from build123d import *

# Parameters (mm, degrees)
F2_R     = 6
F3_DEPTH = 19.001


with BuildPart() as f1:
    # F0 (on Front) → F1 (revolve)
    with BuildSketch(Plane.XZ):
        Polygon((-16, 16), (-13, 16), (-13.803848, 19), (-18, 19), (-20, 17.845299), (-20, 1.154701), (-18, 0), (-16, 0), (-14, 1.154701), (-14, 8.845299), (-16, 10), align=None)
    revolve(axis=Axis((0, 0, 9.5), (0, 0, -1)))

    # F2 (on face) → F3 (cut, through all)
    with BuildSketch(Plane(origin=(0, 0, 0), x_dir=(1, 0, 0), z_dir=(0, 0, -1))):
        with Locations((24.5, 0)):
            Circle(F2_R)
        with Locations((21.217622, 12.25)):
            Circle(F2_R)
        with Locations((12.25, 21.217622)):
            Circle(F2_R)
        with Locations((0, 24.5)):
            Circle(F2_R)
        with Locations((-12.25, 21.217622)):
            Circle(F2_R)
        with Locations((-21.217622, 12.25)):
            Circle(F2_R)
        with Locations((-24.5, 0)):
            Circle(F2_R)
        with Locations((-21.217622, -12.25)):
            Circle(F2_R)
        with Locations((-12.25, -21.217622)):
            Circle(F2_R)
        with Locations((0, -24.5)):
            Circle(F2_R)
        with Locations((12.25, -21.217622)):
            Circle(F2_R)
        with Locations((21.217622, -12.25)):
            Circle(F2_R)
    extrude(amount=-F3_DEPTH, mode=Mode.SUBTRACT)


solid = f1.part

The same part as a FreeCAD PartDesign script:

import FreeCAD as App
import Part
import Sketcher

V = App.Vector
Q = App.Units.Quantity


def add_polygon(sketch, points):
    """Adds a closed chain of lines whose ends are joined by coincident constraints."""
    first, n = sketch.GeometryCount, len(points)
    for a, b in zip(points, points[1:] + points[:1]):
        sketch.addGeometry(Part.LineSegment(App.Vector(*a, 0), App.Vector(*b, 0)), False)
    for i in range(n):
        sketch.addConstraint(Sketcher.Constraint("Coincident", first + i, 2, first + (i + 1) % n, 1))

doc = App.newDocument("Part")
body = doc.addObject("PartDesign::Body", "Body")

# Sketch on XZ plane
sketch1 = body.newObject("Sketcher::SketchObject", "Sketch")
sketch1.AttachmentSupport = (doc.getObject("XZ_Plane"), [""])
sketch1.MapMode = "FlatFace"
add_polygon(sketch1, [(-16, 16), (-13, 16), (-13.803848, 19), (-18, 19), (-20, 17.845299), (-20, 1.154701), (-18, 0), (-16, 0), (-14, 1.154701), (-14, 8.845299), (-16, 10)])  # lines 0-10
sketch1.addConstraint([
    Sketcher.Constraint("Horizontal", 0),
    Sketcher.Constraint("Horizontal", 2),
    Sketcher.Constraint("Vertical", 4),
    Sketcher.Constraint("Horizontal", 6),
    Sketcher.Constraint("Vertical", 8),
    Sketcher.Constraint("Vertical", 10),
    Sketcher.Constraint("PointOnObject", 5, 2, -1),
    Sketcher.Constraint("Parallel", 3, 7),
    Sketcher.Constraint("Parallel", 5, 9),
    Sketcher.Constraint("Horizontal", 4, 2, 7, 2),
    Sketcher.Constraint("Vertical", 2, 2, 5, 2),
    Sketcher.Constraint("Vertical", 6, 2, 9, 2),
    Sketcher.Constraint("Equal", 3, 5),
    Sketcher.Constraint("DistanceX", 0, 1, 0, 2, Q("3 mm")),
    Sketcher.Constraint("DistanceX", 6, 1, 6, 2, Q("2 mm")),
    Sketcher.Constraint("DistanceY", 10, 1, 10, 2, Q("6 mm")),
    Sketcher.Constraint("Angle", 1, Q("105.000008 deg")),
    Sketcher.Constraint("Angle", 3, Q("-149.99999 deg")),
    Sketcher.Constraint("DistanceX", 0, 2, -1, 1, Q("13 mm")),
    Sketcher.Constraint("DistanceY", -1, 1, 0, 2, Q("16 mm")),
    Sketcher.Constraint("DistanceY", -1, 1, 1, 2, Q("19 mm")),
    Sketcher.Constraint("DistanceX", 3, 2, -1, 1, Q("20 mm")),
])
revolution = body.newObject("PartDesign::Revolution", "Revolution")
revolution.Profile = sketch1
revolution.ReferenceAxis = (sketch1, ["V_Axis"])
revolution.Angle = 360

# Sketch on XY plane
sketch2 = body.newObject("Sketcher::SketchObject", "Sketch001")
sketch2.AttachmentSupport = (doc.getObject("XY_Plane"), [""])
sketch2.MapMode = "FlatFace"
sketch2.addGeometry([
    Part.Circle(V(24.5, 0, 0), V(0, 0, 1), 6),  # 0
    Part.Circle(V(21.217622, -12.25, 0), V(0, 0, 1), 6),  # 1
    Part.Circle(V(12.25, -21.217622, 0), V(0, 0, 1), 6),  # 2
    Part.Circle(V(0, -24.5, 0), V(0, 0, 1), 6),  # 3
    Part.Circle(V(-12.25, -21.217622, 0), V(0, 0, 1), 6),  # 4
    Part.Circle(V(-21.217622, -12.25, 0), V(0, 0, 1), 6),  # 5
    Part.Circle(V(-24.5, 0, 0), V(0, 0, 1), 6),  # 6
    Part.Circle(V(-21.217622, 12.25, 0), V(0, 0, 1), 6),  # 7
    Part.Circle(V(-12.25, 21.217622, 0), V(0, 0, 1), 6),  # 8
    Part.Circle(V(0, 24.5, 0), V(0, 0, 1), 6),  # 9
    Part.Circle(V(12.25, 21.217622, 0), V(0, 0, 1), 6),  # 10
    Part.Circle(V(21.217622, 12.25, 0), V(0, 0, 1), 6),  # 11
], False)
sketch2.addConstraint([
    Sketcher.Constraint("Equal", 0, 1),
    Sketcher.Constraint("Equal", 1, 2),
    Sketcher.Constraint("Equal", 2, 3),
    Sketcher.Constraint("Equal", 3, 4),
    Sketcher.Constraint("Equal", 4, 5),
    Sketcher.Constraint("Equal", 5, 6),
    Sketcher.Constraint("Equal", 6, 7),
    Sketcher.Constraint("Equal", 7, 8),
    Sketcher.Constraint("Equal", 8, 9),
    Sketcher.Constraint("Equal", 9, 10),
    Sketcher.Constraint("Equal", 10, 11),
    Sketcher.Constraint("Symmetric", 0, 3, 6, 3, -1, 1),
    Sketcher.Constraint("Symmetric", 1, 3, 7, 3, -1, 1),
    Sketcher.Constraint("Symmetric", 2, 3, 8, 3, -1, 1),
    Sketcher.Constraint("Symmetric", 3, 3, 9, 3, -1, 1),
    Sketcher.Constraint("Symmetric", 4, 3, 10, 3, -1, 1),
    Sketcher.Constraint("Symmetric", 5, 3, 11, 3, -1, 1),
    Sketcher.Constraint("Symmetric", 2, 3, 4, 3, -2),
    Sketcher.Constraint("Symmetric", 1, 3, 5, 3, -2),
    Sketcher.Constraint("PointOnObject", 0, 3, -1),
    Sketcher.Constraint("PointOnObject", 3, 3, -2),
    Sketcher.Constraint("Diameter", 0, Q("12 mm")),
    Sketcher.Constraint("DistanceX", -1, 1, 0, 3, Q("24.5 mm")),
    Sketcher.Constraint("DistanceY", 3, 3, -1, 1, Q("24.5 mm")),
    Sketcher.Constraint("DistanceX", 4, 3, 2, 3, Q("24.5 mm")),
    Sketcher.Constraint("DistanceY", 5, 3, 7, 3, Q("24.5 mm")),
    Sketcher.Constraint("DistanceX", -1, 1, 1, 3, Q("21.217622 mm")),
    Sketcher.Constraint("DistanceY", 2, 3, -1, 1, Q("21.217622 mm")),
])
pocket1 = body.newObject("PartDesign::Pocket", "Pocket")
pocket1.Profile = sketch2
pocket1.Type = "ThroughAll"
pocket1.Reversed = True

doc.recompute()
